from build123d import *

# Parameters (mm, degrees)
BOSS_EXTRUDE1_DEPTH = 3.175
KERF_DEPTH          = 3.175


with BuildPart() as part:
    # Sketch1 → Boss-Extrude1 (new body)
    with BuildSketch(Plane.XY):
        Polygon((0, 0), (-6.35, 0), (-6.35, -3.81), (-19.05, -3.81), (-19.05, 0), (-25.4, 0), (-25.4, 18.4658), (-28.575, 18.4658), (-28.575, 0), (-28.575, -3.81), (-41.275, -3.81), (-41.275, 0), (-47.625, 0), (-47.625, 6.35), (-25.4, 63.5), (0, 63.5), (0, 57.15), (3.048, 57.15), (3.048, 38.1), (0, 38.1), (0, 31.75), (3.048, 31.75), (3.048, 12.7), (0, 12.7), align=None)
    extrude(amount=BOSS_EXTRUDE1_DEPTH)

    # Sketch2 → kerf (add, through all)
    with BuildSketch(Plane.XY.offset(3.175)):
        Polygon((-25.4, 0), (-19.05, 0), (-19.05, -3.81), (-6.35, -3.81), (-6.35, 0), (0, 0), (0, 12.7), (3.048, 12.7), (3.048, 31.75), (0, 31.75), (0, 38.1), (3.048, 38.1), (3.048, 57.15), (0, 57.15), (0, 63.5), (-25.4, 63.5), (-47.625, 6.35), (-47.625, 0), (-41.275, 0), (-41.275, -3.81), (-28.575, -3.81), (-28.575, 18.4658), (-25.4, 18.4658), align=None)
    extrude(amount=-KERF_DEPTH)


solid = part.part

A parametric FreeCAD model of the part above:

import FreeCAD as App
import Part
import Sketcher
from FreeCAD import Vector
Q = App.Units.Quantity

doc = App.newDocument("Part")
params = doc.addObject("Spreadsheet::Sheet", "Params")
for row, (alias, value) in enumerate([
    ("sketch1_width", "1 in"),
    ("sketch1_width2", "0.5 in"),
    ("sketch1_width3", "0.12 in"),
    ("sketch1_height", "0.15 in"),
    ("sketch1_width4", "0.125 in"),
    ("pad1_length", "0.125 in"),
    ("sketch2_width", "1 in"),
    ("sketch2_width2", "0.5 in"),
    ("sketch2_width3", "0.12 in"),
    ("sketch2_height", "0.15 in"),
    ("sketch2_width4", "0.125 in"),
], start=1):
    params.set(f"A{row}", alias)
    params.set(f"B{row}", "=" + value)
    params.setAlias(f"B{row}", alias)

body = doc.addObject("PartDesign::Body", "Body")

# Sketch on XY plane
sketch1 = doc.addObject("Sketcher::SketchObject", "Sketch")
body.addObject(sketch1)
sketch1.AttachmentSupport = (doc.XY_Plane, [""])
sketch1.MapMode = "FlatFace"
sketch1.addGeometry(Part.LineSegment(Vector(-6.3, 0, 0), Vector(0, 0, 0)), False)
sketch1.addGeometry(Part.LineSegment(Vector(0, 0, 0), Vector(0, 12.7, 0)), False)
sketch1.addGeometry(Part.LineSegment(Vector(0, 12.7, 0), Vector(3, 12.7, 0)), False)
sketch1.addGeometry(Part.LineSegment(Vector(3, 12.7, 0), Vector(3, 31.8, 0)), False)
sketch1.addGeometry(Part.LineSegment(Vector(3, 31.8, 0), Vector(0, 31.8, 0)), False)
sketch1.addGeometry(Part.LineSegment(Vector(0, 31.8, 0), Vector(0, 38.1, 0)), False)
sketch1.addGeometry(Part.LineSegment(Vector(0, 38.1, 0), Vector(3, 38.1, 0)), False)
sketch1.addGeometry(Part.LineSegment(Vector(3, 38.1, 0), Vector(3, 57.1, 0)), False)
sketch1.addGeometry(Part.LineSegment(Vector(3, 57.1, 0), Vector(0, 57.1, 0)), False)
sketch1.addGeometry(Part.LineSegment(Vector(0, 57.1, 0), Vector(0, 63.5, 0)), False)
sketch1.addGeometry(Part.LineSegment(Vector(0, 63.5, 0), Vector(-25.4, 63.5, 0)), False)
sketch1.addGeometry(Part.LineSegment(Vector(-25.4, 63.5, 0), Vector(-47.6, 6.3, 0)), False)
sketch1.addGeometry(Part.LineSegment(Vector(-47.6, 6.3, 0), Vector(-47.6, 0, 0)), False)
sketch1.addGeometry(Part.LineSegment(Vector(-47.6, 0, 0), Vector(-41.3, 0, 0)), False)
sketch1.addGeometry(Part.LineSegment(Vector(-41.3, 0, 0), Vector(-41.3, -3.8, 0)), False)
sketch1.addGeometry(Part.LineSegment(Vector(-41.3, -3.8, 0), Vector(-28.6, -3.8, 0)), False)
sketch1.addGeometry(Part.LineSegment(Vector(-28.6, -3.8, 0), Vector(-28.6, 18.5, 0)), False)
sketch1.addGeometry(Part.LineSegment(Vector(-28.6, 18.5, 0), Vector(-25.4, 18.5, 0)), False)
sketch1.addGeometry(Part.LineSegment(Vector(-25.4, 18.5, 0), Vector(-25.4, 0, 0)), False)
sketch1.addGeometry(Part.LineSegment(Vector(-25.4, 0, 0), Vector(-19.1, 0, 0)), False)
sketch1.addGeometry(Part.LineSegment(Vector(-19.1, 0, 0), Vector(-19.1, -3.8, 0)), False)
sketch1.addGeometry(Part.LineSegment(Vector(-19.1, -3.8, 0), Vector(-6.3, -3.8, 0)), False)
sketch1.addGeometry(Part.LineSegment(Vector(-6.3, -3.8, 0), Vector(-6.3, 0, 0)), False)
sketch1.addConstraint(Sketcher.Constraint("Coincident", 0, 2, 1, 1))
sketch1.addConstraint(Sketcher.Constraint("Coincident", 1, 2, 2, 1))
sketch1.addConstraint(Sketcher.Constraint("Coincident", 2, 2, 3, 1))
sketch1.addConstraint(Sketcher.Constraint("Coincident", 3, 2, 4, 1))
sketch1.addConstraint(Sketcher.Constraint("Coincident", 4, 2, 5, 1))
sketch1.addConstraint(Sketcher.Constraint("Coincident", 5, 2, 6, 1))
sketch1.addConstraint(Sketcher.Constraint("Coincident", 6, 2, 7, 1))
sketch1.addConstraint(Sketcher.Constraint("Coincident", 7, 2, 8, 1))
sketch1.addConstraint(Sketcher.Constraint("Coincident", 8, 2, 9, 1))
sketch1.addConstraint(Sketcher.Constraint("Coincident", 9, 2, 10, 1))
sketch1.addConstraint(Sketcher.Constraint("Coincident", 10, 2, 11, 1))
sketch1.addConstraint(Sketcher.Constraint("Coincident", 11, 2, 12, 1))
sketch1.addConstraint(Sketcher.Constraint("Coincident", 12, 2, 13, 1))
sketch1.addConstraint(Sketcher.Constraint("Coincident", 13, 2, 14, 1))
sketch1.addConstraint(Sketcher.Constraint("Coincident", 14, 2, 15, 1))
sketch1.addConstraint(Sketcher.Constraint("Coincident", 15, 2, 16, 1))
sketch1.addConstraint(Sketcher.Constraint("Coincident", 16, 2, 17, 1))
sketch1.addConstraint(Sketcher.Constraint("Coincident", 17, 2, 18, 1))
sketch1.addConstraint(Sketcher.Constraint("Coincident", 18, 2, 19, 1))
sketch1.addConstraint(Sketcher.Constraint("Coincident", 19, 2, 20, 1))
sketch1.addConstraint(Sketcher.Constraint("Coincident", 20, 2, 21, 1))
sketch1.addConstraint(Sketcher.Constraint("Coincident", 21, 2, 22, 1))
sketch1.addConstraint(Sketcher.Constraint("Coincident", 22, 2, 0, 1))
sketch1.addConstraint(Sketcher.Constraint("Horizontal", 0))
sketch1.addConstraint(Sketcher.Constraint("Vertical", 1))
sketch1.addConstraint(Sketcher.Constraint("Horizontal", 2))
sketch1.addConstraint(Sketcher.Constraint("Vertical", 3))
sketch1.addConstraint(Sketcher.Constraint("Horizontal", 4))
sketch1.addConstraint(Sketcher.Constraint("Vertical", 5))
sketch1.addConstraint(Sketcher.Constraint("Horizontal", 6))
sketch1.addConstraint(Sketcher.Constraint("Vertical", 7))
sketch1.addConstraint(Sketcher.Constraint("Horizontal", 8))
sketch1.addConstraint(Sketcher.Constraint("Vertical", 9))
sketch1.addConstraint(Sketcher.Constraint("Horizontal", 10))
sketch1.addConstraint(Sketcher.Constraint("Vertical", 12))
sketch1.addConstraint(Sketcher.Constraint("Horizontal", 13))
sketch1.addConstraint(Sketcher.Constraint("Vertical", 14))
sketch1.addConstraint(Sketcher.Constraint("Horizontal", 15))
sketch1.addConstraint(Sketcher.Constraint("Vertical", 16))
sketch1.addConstraint(Sketcher.Constraint("Horizontal", 17))
sketch1.addConstraint(Sketcher.Constraint("Vertical", 18))
sketch1.addConstraint(Sketcher.Constraint("Horizontal", 19))
sketch1.addConstraint(Sketcher.Constraint("Vertical", 20))
sketch1.addConstraint(Sketcher.Constraint("Horizontal", 21))
sketch1.addConstraint(Sketcher.Constraint("Vertical", 22))
sketch1.addConstraint(Sketcher.Constraint("Coincident", 0, 2, -1, 1))
sketch1.addConstraint(Sketcher.Constraint("PointOnObject", 4, 2, -2))
sketch1.addConstraint(Sketcher.Constraint("PointOnObject", 8, 2, -2))
sketch1.addConstraint(Sketcher.Constraint("PointOnObject", 12, 2, -1))
sketch1.addConstraint(Sketcher.Constraint("PointOnObject", 18, 2, -1))
sketch1.addConstraint(Sketcher.Constraint("Horizontal", 15, 2, 20, 2))
sketch1.addConstraint(Sketcher.Constraint("Vertical", 3, 2, 6, 2))
sketch1.addConstraint(Sketcher.Constraint("Vertical", 10, 2, 17, 2))
sketch1.addConstraint(Sketcher.Constraint("Equal", 0, 13))
sketch1.addConstraint(Sketcher.Constraint("Equal", 13, 19))
sketch1.addConstraint(Sketcher.Constraint("Equal", 15, 21))
sketch1.addConstraint(Sketcher.Constraint("Equal", 21, 1))
sketch1.addConstraint(Sketcher.Constraint("Equal", 19, 5))
sketch1.addConstraint(Sketcher.Constraint("Equal", 3, 7))
sketch1.addConstraint(Sketcher.Constraint("Equal", 5, 9))
sketch1.addConstraint(Sketcher.Constraint("Equal", 9, 12))
sketch1.addConstraint(Sketcher.Constraint("DistanceX", 10, 2, 10, 1, Q("1 in")))
sketch1.addConstraint(Sketcher.Constraint("DistanceX", 15, 1, 15, 2, Q("0.5 in")))
sketch1.addConstraint(Sketcher.Constraint("DistanceY", 1, 2, 5, 2, Q("1 in")))
sketch1.addConstraint(Sketcher.Constraint("DistanceX", 2, 1, 2, 2, Q("0.12 in")))
sketch1.addConstraint(Sketcher.Constraint("DistanceY", 14, 2, 14, 1, Q("0.15 in")))
sketch1.addConstraint(Sketcher.Constraint("DistanceX", 17, 1, 17, 2, Q("0.125 in")))
sketch1.addConstraint(Sketcher.Constraint("DistanceY", 16, 1, 16, 2, Q("0.877 in")))
sketch1.setExpression("Constraints[61]", "Params.sketch1_width")
sketch1.setExpression("Constraints[62]", "Params.sketch1_width2")
sketch1.setExpression("Constraints[64]", "Params.sketch1_width3")
sketch1.setExpression("Constraints[65]", "Params.sketch1_height")
sketch1.setExpression("Constraints[66]", "Params.sketch1_width4")
pad1 = doc.addObject("PartDesign::Pad", "Pad")
body.addObject(pad1)
pad1.Profile = sketch1
pad1.setExpression("Length", "Params.pad1_length")

# Sketch on XY plane
sketch2 = doc.addObject("Sketcher::SketchObject", "Sketch001")
body.addObject(sketch2)
sketch2.AttachmentSupport = (doc.XY_Plane, [""])
sketch2.MapMode = "FlatFace"
sketch2.AttachmentOffset = App.Placement(Vector(0, 0, 0.125 * 25.4), App.Rotation())
sketch2.addGeometry(Part.LineSegment(Vector(-25.4, 0, 0), Vector(-19.1, 0, 0)), False)
sketch2.addGeometry(Part.LineSegment(Vector(-19.1, 0, 0), Vector(-19.1, -3.8, 0)), False)
sketch2.addGeometry(Part.LineSegment(Vector(-19.1, -3.8, 0), Vector(-6.3, -3.8, 0)), False)
sketch2.addGeometry(Part.LineSegment(Vector(-6.3, -3.8, 0), Vector(-6.3, 0, 0)), False)
sketch2.addGeometry(Part.LineSegment(Vector(-6.3, 0, 0), Vector(0, 0, 0)), False)
sketch2.addGeometry(Part.LineSegment(Vector(0, 0, 0), Vector(0, 12.7, 0)), False)
sketch2.addGeometry(Part.LineSegment(Vector(0, 12.7, 0), Vector(3, 12.7, 0)), False)
sketch2.addGeometry(Part.LineSegment(Vector(3, 12.7, 0), Vector(3, 31.8, 0)), False)
sketch2.addGeometry(Part.LineSegment(Vector(3, 31.8, 0), Vector(0, 31.8, 0)), False)
sketch2.addGeometry(Part.LineSegment(Vector(0, 31.8, 0), Vector(0, 38.1, 0)), False)
sketch2.addGeometry(Part.LineSegment(Vector(0, 38.1, 0), Vector(3, 38.1, 0)), False)
sketch2.addGeometry(Part.LineSegment(Vector(3, 38.1, 0), Vector(3, 57.1, 0)), False)
sketch2.addGeometry(Part.LineSegment(Vector(3, 57.1, 0), Vector(0, 57.1, 0)), False)
sketch2.addGeometry(Part.LineSegment(Vector(0, 57.1, 0), Vector(0, 63.5, 0)), False)
sketch2.addGeometry(Part.LineSegment(Vector(0, 63.5, 0), Vector(-25.4, 63.5, 0)), False)
sketch2.addGeometry(Part.LineSegment(Vector(-25.4, 63.5, 0), Vector(-47.6, 6.3, 0)), False)
sketch2.addGeometry(Part.LineSegment(Vector(-47.6, 6.3, 0), Vector(-47.6, 0, 0)), False)
sketch2.addGeometry(Part.LineSegment(Vector(-47.6, 0, 0), Vector(-41.3, 0, 0)), False)
sketch2.addGeometry(Part.LineSegment(Vector(-41.3, 0, 0), Vector(-41.3, -3.8, 0)), False)
sketch2.addGeometry(Part.LineSegment(Vector(-41.3, -3.8, 0), Vector(-28.6, -3.8, 0)), False)
sketch2.addGeometry(Part.LineSegment(Vector(-28.6, -3.8, 0), Vector(-28.6, 18.5, 0)), False)
sketch2.addGeometry(Part.LineSegment(Vector(-28.6, 18.5, 0), Vector(-25.4, 18.5, 0)), False)
sketch2.addGeometry(Part.LineSegment(Vector(-25.4, 18.5, 0), Vector(-25.4, 0, 0)), False)
sketch2.addConstraint(Sketcher.Constraint("Coincident", 0, 2, 1, 1))
sketch2.addConstraint(Sketcher.Constraint("Coincident", 1, 2, 2, 1))
sketch2.addConstraint(Sketcher.Constraint("Coincident", 2, 2, 3, 1))
sketch2.addConstraint(Sketcher.Constraint("Coincident", 3, 2, 4, 1))
sketch2.addConstraint(Sketcher.Constraint("Coincident", 4, 2, 5, 1))
sketch2.addConstraint(Sketcher.Constraint("Coincident", 5, 2, 6, 1))
sketch2.addConstraint(Sketcher.Constraint("Coincident", 6, 2, 7, 1))
sketch2.addConstraint(Sketcher.Constraint("Coincident", 7, 2, 8, 1))
sketch2.addConstraint(Sketcher.Constraint("Coincident", 8, 2, 9, 1))
sketch2.addConstraint(Sketcher.Constraint("Coincident", 9, 2, 10, 1))
sketch2.addConstraint(Sketcher.Constraint("Coincident", 10, 2, 11, 1))
sketch2.addConstraint(Sketcher.Constraint("Coincident", 11, 2, 12, 1))
sketch2.addConstraint(Sketcher.Constraint("Coincident", 12, 2, 13, 1))
sketch2.addConstraint(Sketcher.Constraint("Coincident", 13, 2, 14, 1))
sketch2.addConstraint(Sketcher.Constraint("Coincident", 14, 2, 15, 1))
sketch2.addConstraint(Sketcher.Constraint("Coincident", 15, 2, 16, 1))
sketch2.addConstraint(Sketcher.Constraint("Coincident", 16, 2, 17, 1))
sketch2.addConstraint(Sketcher.Constraint("Coincident", 17, 2, 18, 1))
sketch2.addConstraint(Sketcher.Constraint("Coincident", 18, 2, 19, 1))
sketch2.addConstraint(Sketcher.Constraint("Coincident", 19, 2, 20, 1))
sketch2.addConstraint(Sketcher.Constraint("Coincident", 20, 2, 21, 1))
sketch2.addConstraint(Sketcher.Constraint("Coincident", 21, 2, 22, 1))
sketch2.addConstraint(Sketcher.Constraint("Coincident", 22, 2, 0, 1))
sketch2.addConstraint(Sketcher.Constraint("Horizontal", 0))
sketch2.addConstraint(Sketcher.Constraint("Vertical", 1))
sketch2.addConstraint(Sketcher.Constraint("Horizontal", 2))
sketch2.addConstraint(Sketcher.Constraint("Vertical", 3))
sketch2.addConstraint(Sketcher.Constraint("Horizontal", 4))
sketch2.addConstraint(Sketcher.Constraint("Vertical", 5))
sketch2.addConstraint(Sketcher.Constraint("Horizontal", 6))
sketch2.addConstraint(Sketcher.Constraint("Vertical", 7))
sketch2.addConstraint(Sketcher.Constraint("Horizontal", 8))
sketch2.addConstraint(Sketcher.Constraint("Vertical", 9))
sketch2.addConstraint(Sketcher.Constraint("Horizontal", 10))
sketch2.addConstraint(Sketcher.Constraint("Vertical", 11))
sketch2.addConstraint(Sketcher.Constraint("Horizontal", 12))
sketch2.addConstraint(Sketcher.Constraint("Vertical", 13))
sketch2.addConstraint(Sketcher.Constraint("Horizontal", 14))
sketch2.addConstraint(Sketcher.Constraint("Vertical", 16))
sketch2.addConstraint(Sketcher.Constraint("Horizontal", 17))
sketch2.addConstraint(Sketcher.Constraint("Vertical", 18))
sketch2.addConstraint(Sketcher.Constraint("Horizontal", 19))
sketch2.addConstraint(Sketcher.Constraint("Vertical", 20))
sketch2.addConstraint(Sketcher.Constraint("Horizontal", 21))
sketch2.addConstraint(Sketcher.Constraint("Vertical", 22))
sketch2.addConstraint(Sketcher.Constraint("Coincident", 4, 2, -1, 1))
sketch2.addConstraint(Sketcher.Constraint("PointOnObject", 0, 2, -1))
sketch2.addConstraint(Sketcher.Constraint("PointOnObject", 8, 2, -2))
sketch2.addConstraint(Sketcher.Constraint("PointOnObject", 12, 2, -2))
sketch2.addConstraint(Sketcher.Constraint("PointOnObject", 16, 2, -1))
sketch2.addConstraint(Sketcher.Constraint("Horizontal", 2, 2, 18, 2))
sketch2.addConstraint(Sketcher.Constraint("Vertical", 7, 2, 10, 2))
sketch2.addConstraint(Sketcher.Constraint("Vertical", 14, 2, 21, 2))
sketch2.addConstraint(Sketcher.Constraint("Equal", 0, 4))
sketch2.addConstraint(Sketcher.Constraint("Equal", 4, 17))
sketch2.addConstraint(Sketcher.Constraint("Equal", 2, 19))
sketch2.addConstraint(Sketcher.Constraint("Equal", 19, 5))
sketch2.addConstraint(Sketcher.Constraint("Equal", 17, 9))
sketch2.addConstraint(Sketcher.Constraint("Equal", 7, 11))
sketch2.addConstraint(Sketcher.Constraint("Equal", 9, 13))
sketch2.addConstraint(Sketcher.Constraint("Equal", 13, 16))
sketch2.addConstraint(Sketcher.Constraint("DistanceX", 14, 2, 14, 1, Q("1 in")))
sketch2.addConstraint(Sketcher.Constraint("DistanceX", 2, 1, 2, 2, Q("0.5 in")))
sketch2.addConstraint(Sketcher.Constraint("DistanceY", 5, 2, 9, 2, Q("1 in")))
sketch2.addConstraint(Sketcher.Constraint("DistanceX", 6, 1, 6, 2, Q("0.12 in")))
sketch2.addConstraint(Sketcher.Constraint("DistanceY", 1, 2, 1, 1, Q("0.15 in")))
sketch2.addConstraint(Sketcher.Constraint("DistanceX", 21, 1, 21, 2, Q("0.125 in")))
sketch2.addConstraint(Sketcher.Constraint("DistanceY", 20, 1, 20, 2, Q("0.877 in")))
sketch2.setExpression("Constraints[61]", "Params.sketch2_width")
sketch2.setExpression("Constraints[62]", "Params.sketch2_width2")
sketch2.setExpression("Constraints[64]", "Params.sketch2_width3")
sketch2.setExpression("Constraints[65]", "Params.sketch2_height")
sketch2.setExpression("Constraints[66]", "Params.sketch2_width4")
pad2 = doc.addObject("PartDesign::Pad", "Pad001")
body.addObject(pad2)
pad2.Profile = sketch2
pad2.Type = "UpToLast"
pad2.Reversed = True

doc.recompute()
